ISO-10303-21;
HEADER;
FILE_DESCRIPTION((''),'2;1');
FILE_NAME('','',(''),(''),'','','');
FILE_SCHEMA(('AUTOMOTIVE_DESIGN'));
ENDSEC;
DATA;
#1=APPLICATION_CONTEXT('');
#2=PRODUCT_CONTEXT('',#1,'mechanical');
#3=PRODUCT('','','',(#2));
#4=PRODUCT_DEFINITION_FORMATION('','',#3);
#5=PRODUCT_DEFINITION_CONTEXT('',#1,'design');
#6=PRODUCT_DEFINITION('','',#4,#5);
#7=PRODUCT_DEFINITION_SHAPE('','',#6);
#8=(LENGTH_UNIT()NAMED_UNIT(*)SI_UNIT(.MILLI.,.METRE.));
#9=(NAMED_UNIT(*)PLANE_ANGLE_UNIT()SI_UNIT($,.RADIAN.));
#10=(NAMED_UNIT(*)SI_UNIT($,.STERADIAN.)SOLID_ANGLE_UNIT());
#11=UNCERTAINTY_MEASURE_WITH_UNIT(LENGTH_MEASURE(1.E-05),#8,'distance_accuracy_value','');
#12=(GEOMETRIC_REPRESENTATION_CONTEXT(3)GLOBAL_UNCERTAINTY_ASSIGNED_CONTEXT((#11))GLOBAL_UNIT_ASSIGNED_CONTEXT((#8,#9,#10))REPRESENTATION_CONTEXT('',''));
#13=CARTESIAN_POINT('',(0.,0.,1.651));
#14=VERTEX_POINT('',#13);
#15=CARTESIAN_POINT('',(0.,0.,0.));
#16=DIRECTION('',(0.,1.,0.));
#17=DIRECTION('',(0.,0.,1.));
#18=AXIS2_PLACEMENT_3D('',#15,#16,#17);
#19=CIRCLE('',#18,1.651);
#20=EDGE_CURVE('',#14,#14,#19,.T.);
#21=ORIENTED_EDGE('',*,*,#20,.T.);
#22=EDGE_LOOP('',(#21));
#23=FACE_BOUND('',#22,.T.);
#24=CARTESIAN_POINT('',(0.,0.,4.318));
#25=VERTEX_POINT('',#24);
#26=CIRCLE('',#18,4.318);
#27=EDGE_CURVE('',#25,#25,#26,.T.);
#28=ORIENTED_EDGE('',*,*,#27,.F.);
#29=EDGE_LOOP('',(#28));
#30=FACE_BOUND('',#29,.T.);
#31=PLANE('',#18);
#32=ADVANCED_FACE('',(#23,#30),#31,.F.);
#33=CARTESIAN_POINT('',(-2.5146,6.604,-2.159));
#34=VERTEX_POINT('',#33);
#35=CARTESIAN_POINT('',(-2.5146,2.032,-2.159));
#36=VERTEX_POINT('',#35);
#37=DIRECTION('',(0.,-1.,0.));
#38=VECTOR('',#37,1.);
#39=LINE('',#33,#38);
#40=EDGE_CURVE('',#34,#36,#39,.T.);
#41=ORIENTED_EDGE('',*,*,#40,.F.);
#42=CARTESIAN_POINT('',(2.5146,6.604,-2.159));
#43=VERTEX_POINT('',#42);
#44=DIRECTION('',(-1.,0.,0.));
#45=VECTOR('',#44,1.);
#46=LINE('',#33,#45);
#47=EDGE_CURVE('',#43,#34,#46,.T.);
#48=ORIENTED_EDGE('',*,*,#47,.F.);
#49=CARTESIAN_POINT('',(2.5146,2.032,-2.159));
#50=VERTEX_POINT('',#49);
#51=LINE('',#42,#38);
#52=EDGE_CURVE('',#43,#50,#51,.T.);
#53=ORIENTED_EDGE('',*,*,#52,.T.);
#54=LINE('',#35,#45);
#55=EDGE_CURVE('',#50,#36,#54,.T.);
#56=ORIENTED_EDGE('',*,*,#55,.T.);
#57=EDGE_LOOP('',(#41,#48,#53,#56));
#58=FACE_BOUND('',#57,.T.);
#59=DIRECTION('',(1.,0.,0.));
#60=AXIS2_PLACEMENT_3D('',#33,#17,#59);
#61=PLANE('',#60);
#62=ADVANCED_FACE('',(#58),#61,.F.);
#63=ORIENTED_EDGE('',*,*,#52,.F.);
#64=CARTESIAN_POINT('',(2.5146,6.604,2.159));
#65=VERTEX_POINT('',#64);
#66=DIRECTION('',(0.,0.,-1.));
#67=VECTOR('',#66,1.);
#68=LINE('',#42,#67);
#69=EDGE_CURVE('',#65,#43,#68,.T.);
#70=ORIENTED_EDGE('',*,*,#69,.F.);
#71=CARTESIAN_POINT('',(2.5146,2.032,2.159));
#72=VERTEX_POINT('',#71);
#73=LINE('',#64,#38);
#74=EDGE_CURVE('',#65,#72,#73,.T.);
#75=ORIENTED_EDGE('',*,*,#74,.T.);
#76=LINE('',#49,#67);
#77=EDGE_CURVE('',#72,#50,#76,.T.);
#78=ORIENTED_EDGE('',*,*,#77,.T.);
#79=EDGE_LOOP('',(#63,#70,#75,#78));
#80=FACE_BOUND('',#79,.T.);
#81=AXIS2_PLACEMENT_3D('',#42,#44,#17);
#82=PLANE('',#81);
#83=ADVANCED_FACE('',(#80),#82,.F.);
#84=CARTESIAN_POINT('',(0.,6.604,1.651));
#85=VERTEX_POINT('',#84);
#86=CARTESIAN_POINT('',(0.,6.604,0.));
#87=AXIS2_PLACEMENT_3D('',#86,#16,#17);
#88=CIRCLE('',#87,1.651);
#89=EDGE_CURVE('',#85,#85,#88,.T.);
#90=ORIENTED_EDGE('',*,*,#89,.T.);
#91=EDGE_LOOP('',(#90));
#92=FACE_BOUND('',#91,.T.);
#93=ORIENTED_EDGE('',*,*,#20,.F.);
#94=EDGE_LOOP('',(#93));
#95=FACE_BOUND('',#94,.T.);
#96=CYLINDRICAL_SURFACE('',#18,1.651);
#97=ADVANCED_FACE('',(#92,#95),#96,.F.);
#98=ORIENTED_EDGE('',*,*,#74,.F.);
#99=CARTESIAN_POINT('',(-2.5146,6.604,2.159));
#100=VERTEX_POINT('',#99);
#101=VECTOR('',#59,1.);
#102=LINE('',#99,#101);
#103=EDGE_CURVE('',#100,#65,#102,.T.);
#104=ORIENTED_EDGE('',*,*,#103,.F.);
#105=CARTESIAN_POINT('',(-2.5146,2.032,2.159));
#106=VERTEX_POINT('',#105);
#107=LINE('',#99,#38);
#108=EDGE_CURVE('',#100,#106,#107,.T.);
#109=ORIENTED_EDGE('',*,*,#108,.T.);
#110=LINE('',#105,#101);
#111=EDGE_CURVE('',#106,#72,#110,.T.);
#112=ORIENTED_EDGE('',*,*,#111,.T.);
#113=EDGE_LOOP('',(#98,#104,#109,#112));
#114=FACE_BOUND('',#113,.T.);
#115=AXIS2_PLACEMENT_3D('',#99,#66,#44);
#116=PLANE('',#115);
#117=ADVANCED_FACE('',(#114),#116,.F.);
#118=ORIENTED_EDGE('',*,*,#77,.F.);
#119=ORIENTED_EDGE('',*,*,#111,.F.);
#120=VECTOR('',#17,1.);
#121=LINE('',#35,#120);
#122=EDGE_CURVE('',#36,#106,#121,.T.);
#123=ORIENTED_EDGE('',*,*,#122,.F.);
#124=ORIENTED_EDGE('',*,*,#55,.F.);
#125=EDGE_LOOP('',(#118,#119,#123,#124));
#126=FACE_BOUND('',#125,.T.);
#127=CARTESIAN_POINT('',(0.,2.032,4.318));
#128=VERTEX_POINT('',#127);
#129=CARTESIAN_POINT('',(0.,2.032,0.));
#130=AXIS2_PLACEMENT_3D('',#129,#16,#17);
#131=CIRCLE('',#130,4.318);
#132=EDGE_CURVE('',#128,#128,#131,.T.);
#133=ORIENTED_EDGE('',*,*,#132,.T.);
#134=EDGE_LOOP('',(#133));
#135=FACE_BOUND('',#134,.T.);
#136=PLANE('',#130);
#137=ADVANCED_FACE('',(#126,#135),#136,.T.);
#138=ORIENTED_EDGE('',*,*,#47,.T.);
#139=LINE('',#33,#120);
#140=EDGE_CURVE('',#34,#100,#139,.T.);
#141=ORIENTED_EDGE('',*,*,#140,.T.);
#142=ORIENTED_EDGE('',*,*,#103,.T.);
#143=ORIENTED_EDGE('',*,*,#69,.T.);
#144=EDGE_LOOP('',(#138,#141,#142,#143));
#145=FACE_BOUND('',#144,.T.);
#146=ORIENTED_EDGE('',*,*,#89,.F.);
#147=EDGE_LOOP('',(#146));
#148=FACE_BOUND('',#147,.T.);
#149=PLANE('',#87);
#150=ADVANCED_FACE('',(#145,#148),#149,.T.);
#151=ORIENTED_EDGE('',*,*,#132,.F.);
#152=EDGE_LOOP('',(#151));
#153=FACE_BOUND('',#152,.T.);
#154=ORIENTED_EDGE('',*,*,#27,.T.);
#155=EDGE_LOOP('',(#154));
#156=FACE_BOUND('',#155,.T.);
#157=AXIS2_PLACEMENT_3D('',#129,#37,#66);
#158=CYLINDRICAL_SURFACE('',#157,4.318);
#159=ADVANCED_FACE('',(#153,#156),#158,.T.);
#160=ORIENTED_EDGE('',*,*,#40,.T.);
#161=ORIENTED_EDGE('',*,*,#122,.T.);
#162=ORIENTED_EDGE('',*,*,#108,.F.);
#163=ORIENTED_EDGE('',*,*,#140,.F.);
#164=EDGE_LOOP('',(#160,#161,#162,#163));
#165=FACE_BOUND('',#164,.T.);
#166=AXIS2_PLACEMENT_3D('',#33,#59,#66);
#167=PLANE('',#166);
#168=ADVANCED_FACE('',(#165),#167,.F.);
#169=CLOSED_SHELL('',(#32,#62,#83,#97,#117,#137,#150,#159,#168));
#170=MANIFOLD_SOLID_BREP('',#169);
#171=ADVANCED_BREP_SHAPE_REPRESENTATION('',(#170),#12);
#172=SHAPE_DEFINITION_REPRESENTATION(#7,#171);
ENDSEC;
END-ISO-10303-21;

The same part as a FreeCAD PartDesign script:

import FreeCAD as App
import Part
import Sketcher
Q = App.Units.Quantity


def add_polygon(sketch, points):
    """Adds a closed chain of lines whose ends are joined by coincident constraints."""
    first, n = sketch.GeometryCount, len(points)
    for a, b in zip(points, points[1:] + points[:1]):
        sketch.addGeometry(Part.LineSegment(App.Vector(*a, 0), App.Vector(*b, 0)), False)
    for i in range(n):
        sketch.addConstraint(Sketcher.Constraint("Coincident", first + i, 2, first + (i + 1) % n, 1))

doc = App.newDocument("Part")
body = doc.addObject("PartDesign::Body", "Body")

# Sketch on XZ plane
sketch1 = doc.addObject("Sketcher::SketchObject", "Sketch")
body.addObject(sketch1)
sketch1.AttachmentSupport = (doc.XZ_Plane, [""])
sketch1.MapMode = "FlatFace"
sketch1.addGeometry(Part.Circle(App.Vector(0, 0, 0), App.Vector(0, 0, 1), 4.3), False)
sketch1.addConstraint([
    Sketcher.Constraint("Coincident", 0, 3, -1, 1),
    Sketcher.Constraint("Diameter", 0, Q("0.34 in")),
])
pad1 = doc.addObject("PartDesign::Pad", "Pad")
body.addObject(pad1)
pad1.Profile = sketch1
pad1.Length = Q("0.08 in")
pad1.Reversed = True

# Sketch on XZ plane
sketch2 = doc.addObject("Sketcher::SketchObject", "Sketch001")
body.addObject(sketch2)
sketch2.AttachmentSupport = (doc.XZ_Plane, [""])
sketch2.MapMode = "FlatFace"
sketch2.AttachmentOffset = App.Placement(App.Vector(0, 0, -0.08 * 25.4), App.Rotation())
add_polygon(sketch2, [(-2.5, -2.2), (-2.5, 2.2), (2.5, 2.2), (2.5, -2.2)])  # lines 0-3
sketch2.addConstraint([
    Sketcher.Constraint("Vertical", 0),
    Sketcher.Constraint("Horizontal", 1),
    Sketcher.Constraint("Vertical", 2),
    Sketcher.Constraint("Horizontal", 3),
    Sketcher.Constraint("Symmetric", 0, 2, 2, 2, -1, 1),
    Sketcher.Constraint("DistanceY", 0, 1, 0, 2, Q("0.17 in")),
    Sketcher.Constraint("DistanceX", 1, 1, 1, 2, Q("0.198 in")),
])
pad2 = doc.addObject("PartDesign::Pad", "Pad001")
body.addObject(pad2)
pad2.Profile = sketch2
pad2.Length = Q("0.18 in")
pad2.Reversed = True

# Sketch on XZ plane
sketch3 = doc.addObject("Sketcher::SketchObject", "Sketch002")
body.addObject(sketch3)
sketch3.AttachmentSupport = (doc.XZ_Plane, [""])
sketch3.MapMode = "FlatFace"
sketch3.AttachmentOffset = App.Placement(App.Vector(0, 0, -0.26 * 25.4), App.Rotation())
sketch3.addGeometry(Part.Circle(App.Vector(0, 0, 0), App.Vector(0, 0, 1), 1.7), False)
sketch3.addConstraint([
    Sketcher.Constraint("Coincident", 0, 3, -1, 1),
    Sketcher.Constraint("Diameter", 0, Q("0.13 in")),
])
pocket1 = doc.addObject("PartDesign::Pocket", "Pocket")
body.addObject(pocket1)
pocket1.Profile = sketch3
pocket1.Type = "ThroughAll"
pocket1.Reversed = True

doc.recompute()
